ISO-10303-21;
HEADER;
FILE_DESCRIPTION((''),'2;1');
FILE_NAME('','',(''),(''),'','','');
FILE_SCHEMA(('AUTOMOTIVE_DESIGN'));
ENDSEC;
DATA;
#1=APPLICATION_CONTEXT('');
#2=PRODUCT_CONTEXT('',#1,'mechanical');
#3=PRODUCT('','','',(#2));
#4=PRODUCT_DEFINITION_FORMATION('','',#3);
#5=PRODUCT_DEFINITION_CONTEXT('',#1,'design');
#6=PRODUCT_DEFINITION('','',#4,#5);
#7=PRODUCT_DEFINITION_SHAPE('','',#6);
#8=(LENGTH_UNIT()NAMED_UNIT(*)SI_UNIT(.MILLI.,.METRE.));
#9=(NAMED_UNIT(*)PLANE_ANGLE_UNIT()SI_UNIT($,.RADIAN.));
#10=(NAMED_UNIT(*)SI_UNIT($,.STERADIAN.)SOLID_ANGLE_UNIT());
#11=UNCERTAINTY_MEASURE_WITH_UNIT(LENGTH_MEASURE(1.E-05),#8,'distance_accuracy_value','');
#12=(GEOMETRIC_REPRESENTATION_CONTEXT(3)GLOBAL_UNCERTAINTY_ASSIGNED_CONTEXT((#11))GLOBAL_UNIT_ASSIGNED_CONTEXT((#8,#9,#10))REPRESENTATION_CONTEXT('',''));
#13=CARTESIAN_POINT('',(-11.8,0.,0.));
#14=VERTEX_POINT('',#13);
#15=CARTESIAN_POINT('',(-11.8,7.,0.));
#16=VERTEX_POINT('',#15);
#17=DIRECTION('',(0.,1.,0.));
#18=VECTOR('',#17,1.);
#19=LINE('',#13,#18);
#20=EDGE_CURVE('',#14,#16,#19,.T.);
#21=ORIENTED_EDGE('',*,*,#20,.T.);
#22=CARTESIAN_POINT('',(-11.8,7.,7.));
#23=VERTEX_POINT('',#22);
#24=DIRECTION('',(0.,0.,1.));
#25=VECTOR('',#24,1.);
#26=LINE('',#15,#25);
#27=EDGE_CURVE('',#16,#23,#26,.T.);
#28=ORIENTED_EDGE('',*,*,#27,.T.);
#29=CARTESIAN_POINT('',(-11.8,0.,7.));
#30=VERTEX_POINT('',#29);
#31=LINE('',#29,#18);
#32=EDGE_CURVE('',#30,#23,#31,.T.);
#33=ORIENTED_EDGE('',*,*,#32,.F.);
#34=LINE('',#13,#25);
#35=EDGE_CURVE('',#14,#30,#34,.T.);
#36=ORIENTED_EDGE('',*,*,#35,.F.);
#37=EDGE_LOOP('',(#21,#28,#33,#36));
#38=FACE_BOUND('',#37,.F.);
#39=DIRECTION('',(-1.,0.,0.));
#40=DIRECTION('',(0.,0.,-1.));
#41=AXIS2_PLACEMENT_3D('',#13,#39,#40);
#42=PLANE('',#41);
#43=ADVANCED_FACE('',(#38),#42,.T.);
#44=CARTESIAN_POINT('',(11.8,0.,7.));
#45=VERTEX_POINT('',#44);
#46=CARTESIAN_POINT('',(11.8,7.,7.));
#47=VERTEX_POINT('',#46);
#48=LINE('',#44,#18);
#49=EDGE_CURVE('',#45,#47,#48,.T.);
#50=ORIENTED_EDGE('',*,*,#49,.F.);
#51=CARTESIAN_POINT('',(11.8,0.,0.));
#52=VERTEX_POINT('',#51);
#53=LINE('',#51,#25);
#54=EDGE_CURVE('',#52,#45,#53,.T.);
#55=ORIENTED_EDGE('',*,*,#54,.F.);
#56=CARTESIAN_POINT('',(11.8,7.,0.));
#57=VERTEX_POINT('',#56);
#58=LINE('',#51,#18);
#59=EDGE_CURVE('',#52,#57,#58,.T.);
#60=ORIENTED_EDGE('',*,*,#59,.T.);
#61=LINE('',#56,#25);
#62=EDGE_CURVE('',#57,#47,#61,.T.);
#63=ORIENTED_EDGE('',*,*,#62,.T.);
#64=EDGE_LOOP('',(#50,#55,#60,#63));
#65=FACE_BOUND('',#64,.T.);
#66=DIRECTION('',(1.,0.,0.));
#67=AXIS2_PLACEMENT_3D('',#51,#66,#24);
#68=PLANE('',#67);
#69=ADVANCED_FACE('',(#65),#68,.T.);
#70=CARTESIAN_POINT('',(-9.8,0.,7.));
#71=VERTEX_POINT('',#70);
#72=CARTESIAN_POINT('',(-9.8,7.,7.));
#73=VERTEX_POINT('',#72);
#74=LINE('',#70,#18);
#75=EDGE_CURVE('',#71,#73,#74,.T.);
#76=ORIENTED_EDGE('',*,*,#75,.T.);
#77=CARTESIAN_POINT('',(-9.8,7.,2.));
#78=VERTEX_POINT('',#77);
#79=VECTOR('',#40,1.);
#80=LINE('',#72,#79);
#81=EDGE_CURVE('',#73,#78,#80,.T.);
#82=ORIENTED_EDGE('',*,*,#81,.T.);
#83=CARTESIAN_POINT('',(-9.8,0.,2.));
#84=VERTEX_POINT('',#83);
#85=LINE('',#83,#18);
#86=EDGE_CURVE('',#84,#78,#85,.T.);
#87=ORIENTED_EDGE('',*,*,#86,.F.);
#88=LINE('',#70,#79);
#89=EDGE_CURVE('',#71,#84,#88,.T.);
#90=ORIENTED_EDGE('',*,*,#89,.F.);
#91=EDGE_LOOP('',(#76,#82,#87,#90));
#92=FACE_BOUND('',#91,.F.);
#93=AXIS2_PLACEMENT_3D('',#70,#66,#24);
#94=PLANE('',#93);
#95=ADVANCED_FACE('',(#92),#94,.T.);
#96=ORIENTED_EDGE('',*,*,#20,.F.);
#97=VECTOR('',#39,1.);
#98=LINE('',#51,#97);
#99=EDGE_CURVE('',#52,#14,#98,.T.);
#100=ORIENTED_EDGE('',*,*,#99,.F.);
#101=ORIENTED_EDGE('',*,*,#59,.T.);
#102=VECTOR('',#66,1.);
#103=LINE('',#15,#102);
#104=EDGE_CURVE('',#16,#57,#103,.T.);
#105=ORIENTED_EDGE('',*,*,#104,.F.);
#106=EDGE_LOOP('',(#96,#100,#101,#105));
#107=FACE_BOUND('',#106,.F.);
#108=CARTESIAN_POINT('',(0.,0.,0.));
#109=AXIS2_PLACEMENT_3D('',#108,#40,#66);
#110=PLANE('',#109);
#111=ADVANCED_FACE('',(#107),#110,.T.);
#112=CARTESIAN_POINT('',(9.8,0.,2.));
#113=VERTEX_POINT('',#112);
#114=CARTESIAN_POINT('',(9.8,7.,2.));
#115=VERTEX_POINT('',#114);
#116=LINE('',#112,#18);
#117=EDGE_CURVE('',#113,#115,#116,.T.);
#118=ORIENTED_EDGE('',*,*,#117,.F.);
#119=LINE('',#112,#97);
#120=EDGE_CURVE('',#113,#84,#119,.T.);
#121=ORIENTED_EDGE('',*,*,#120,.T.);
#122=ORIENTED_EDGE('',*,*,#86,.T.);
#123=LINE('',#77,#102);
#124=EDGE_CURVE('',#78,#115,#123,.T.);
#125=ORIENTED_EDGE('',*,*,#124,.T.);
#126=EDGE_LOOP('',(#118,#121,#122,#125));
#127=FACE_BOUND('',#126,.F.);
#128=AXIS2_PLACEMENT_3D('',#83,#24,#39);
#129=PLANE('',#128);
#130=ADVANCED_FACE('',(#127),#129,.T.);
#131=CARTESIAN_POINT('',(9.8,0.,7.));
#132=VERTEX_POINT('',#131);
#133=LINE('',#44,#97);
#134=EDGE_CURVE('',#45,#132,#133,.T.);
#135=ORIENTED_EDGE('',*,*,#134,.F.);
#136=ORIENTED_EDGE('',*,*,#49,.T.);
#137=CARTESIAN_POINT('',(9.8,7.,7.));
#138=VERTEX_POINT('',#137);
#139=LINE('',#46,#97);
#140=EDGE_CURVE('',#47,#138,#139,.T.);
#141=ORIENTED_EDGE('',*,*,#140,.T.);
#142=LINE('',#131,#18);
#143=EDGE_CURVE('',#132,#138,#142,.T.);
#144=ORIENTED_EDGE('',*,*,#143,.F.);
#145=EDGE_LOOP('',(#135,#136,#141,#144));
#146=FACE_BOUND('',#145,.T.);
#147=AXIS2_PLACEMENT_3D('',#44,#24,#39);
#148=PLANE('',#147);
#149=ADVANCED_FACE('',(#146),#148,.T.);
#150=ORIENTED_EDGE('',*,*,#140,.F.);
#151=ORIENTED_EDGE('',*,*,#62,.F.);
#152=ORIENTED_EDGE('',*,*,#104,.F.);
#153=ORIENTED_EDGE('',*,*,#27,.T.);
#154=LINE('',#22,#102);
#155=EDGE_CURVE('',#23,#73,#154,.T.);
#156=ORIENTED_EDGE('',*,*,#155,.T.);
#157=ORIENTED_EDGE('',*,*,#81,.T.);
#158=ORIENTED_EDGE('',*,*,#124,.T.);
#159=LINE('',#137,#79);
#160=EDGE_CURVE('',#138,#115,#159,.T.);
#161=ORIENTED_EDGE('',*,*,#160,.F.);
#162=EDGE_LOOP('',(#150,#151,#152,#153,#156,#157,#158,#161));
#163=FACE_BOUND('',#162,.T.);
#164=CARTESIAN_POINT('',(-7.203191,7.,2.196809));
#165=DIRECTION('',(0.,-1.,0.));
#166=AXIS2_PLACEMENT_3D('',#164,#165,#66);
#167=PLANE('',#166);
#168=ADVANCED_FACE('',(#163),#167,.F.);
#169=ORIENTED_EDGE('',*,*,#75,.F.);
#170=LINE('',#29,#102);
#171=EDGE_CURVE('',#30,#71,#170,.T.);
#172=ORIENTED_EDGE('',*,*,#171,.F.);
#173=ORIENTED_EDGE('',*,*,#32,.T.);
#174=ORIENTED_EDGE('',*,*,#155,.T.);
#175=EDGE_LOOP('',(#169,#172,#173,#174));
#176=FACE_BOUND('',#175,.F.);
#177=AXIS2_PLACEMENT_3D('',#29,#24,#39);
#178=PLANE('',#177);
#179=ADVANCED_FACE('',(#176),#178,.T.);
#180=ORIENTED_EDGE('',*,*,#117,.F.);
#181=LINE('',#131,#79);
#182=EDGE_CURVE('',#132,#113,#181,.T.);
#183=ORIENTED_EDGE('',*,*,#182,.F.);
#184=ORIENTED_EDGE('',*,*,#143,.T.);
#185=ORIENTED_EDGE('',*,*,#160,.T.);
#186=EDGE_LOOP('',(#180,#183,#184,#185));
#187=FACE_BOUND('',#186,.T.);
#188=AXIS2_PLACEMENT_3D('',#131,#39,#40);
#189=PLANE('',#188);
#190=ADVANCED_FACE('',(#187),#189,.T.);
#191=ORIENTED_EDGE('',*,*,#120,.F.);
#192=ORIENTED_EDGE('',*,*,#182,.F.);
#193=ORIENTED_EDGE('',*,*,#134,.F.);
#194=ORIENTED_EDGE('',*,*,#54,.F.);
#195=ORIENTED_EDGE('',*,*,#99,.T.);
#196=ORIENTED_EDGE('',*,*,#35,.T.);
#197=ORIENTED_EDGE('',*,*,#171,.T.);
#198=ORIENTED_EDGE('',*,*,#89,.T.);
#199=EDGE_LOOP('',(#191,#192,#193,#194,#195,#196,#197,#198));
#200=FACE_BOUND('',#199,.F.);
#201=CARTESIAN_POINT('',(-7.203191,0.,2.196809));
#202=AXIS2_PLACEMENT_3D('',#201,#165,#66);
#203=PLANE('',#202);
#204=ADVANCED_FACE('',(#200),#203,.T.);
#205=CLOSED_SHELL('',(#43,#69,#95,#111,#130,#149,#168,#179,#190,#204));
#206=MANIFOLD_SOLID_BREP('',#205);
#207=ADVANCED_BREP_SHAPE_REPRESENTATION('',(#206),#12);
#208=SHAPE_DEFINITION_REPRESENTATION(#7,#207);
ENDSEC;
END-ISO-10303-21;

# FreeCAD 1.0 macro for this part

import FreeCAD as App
import Part
import Sketcher
from FreeCAD import Vector
Q = App.Units.Quantity


def add_polygon(sketch, points):
    """Adds a closed chain of lines whose ends are joined by coincident constraints."""
    first, n = sketch.GeometryCount, len(points)
    for a, b in zip(points, points[1:] + points[:1]):
        sketch.addGeometry(Part.LineSegment(App.Vector(*a, 0), App.Vector(*b, 0)), False)
    for i in range(n):
        sketch.addConstraint(Sketcher.Constraint("Coincident", first + i, 2, first + (i + 1) % n, 1))

doc = App.newDocument("Part")
body = doc.addObject("PartDesign::Body", "Body")

# Sketch on XZ plane
sketch1 = body.newObject("Sketcher::SketchObject", "Sketch")
sketch1.AttachmentSupport = (doc.getObject("XZ_Plane"), [""])
sketch1.MapMode = "FlatFace"
add_polygon(sketch1, [(0, 2), (0, 0), (11.8, 0), (11.8, 7), (9.8, 7), (9.8, 2)])  # lines 0-5
sketch1.addConstraint([
    Sketcher.Constraint("Vertical", 0),
    Sketcher.Constraint("Horizontal", 1),
    Sketcher.Constraint("Vertical", 2),
    Sketcher.Constraint("Horizontal", 3),
    Sketcher.Constraint("Vertical", 4),
    Sketcher.Constraint("Horizontal", 5),
    Sketcher.Constraint("Coincident", 0, 2, -1, 1),
    Sketcher.Constraint("Equal", 3, 0),
    Sketcher.Constraint("DistanceX", 3, 2, 3, 1, Q("2 mm")),
    Sketcher.Constraint("DistanceY", 2, 1, 2, 2, Q("7 mm")),
    Sketcher.Constraint("DistanceX", 1, 1, 1, 2, Q("11.8 mm")),
])
pad1 = body.newObject("PartDesign::Pad", "Pad")
pad1.Profile = sketch1
pad1.Length = 7
pad1.Reversed = True
body2 = doc.addObject("PartDesign::Body", "Body001")
doc.recompute()

body2.BaseFeature = body
doc.recompute()

mirroring = doc.addObject("Part::Mirroring", "Mirroring")
mirroring.Source = body
mirroring.Base = Vector(0, 0, 0)
mirroring.Normal = Vector(1, 0, 0)
body3 = doc.addObject("PartDesign::Body", "Body002")
body3.BaseFeature = mirroring
boolean = body2.newObject("PartDesign::Boolean", "Boolean")
boolean.Type = "Fuse"
boolean.addObjects([body3])
doc.recompute()
mirroring.Visibility = False

doc.recompute()
